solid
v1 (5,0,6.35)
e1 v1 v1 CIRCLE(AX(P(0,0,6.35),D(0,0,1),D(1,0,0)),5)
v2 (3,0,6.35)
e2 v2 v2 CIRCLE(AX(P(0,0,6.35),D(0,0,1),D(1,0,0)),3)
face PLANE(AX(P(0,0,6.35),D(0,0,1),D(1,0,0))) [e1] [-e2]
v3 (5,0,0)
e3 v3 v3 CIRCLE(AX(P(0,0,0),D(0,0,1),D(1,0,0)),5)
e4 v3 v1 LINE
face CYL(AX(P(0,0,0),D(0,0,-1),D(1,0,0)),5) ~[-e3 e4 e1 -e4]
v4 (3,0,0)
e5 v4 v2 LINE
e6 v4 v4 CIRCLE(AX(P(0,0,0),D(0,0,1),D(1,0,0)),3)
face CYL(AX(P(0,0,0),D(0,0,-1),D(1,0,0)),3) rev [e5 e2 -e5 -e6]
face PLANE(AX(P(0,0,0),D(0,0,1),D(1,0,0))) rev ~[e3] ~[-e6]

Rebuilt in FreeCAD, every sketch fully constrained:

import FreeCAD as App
import Part
import Sketcher

V = App.Vector

doc = App.newDocument("Part")
body = doc.addObject("PartDesign::Body", "Body")

# Sketch on XY plane
sketch1 = doc.addObject("Sketcher::SketchObject", "Sketch")
body.addObject(sketch1)
sketch1.AttachmentSupport = (doc.XY_Plane, [""])
sketch1.MapMode = "FlatFace"
sketch1.addGeometry([
    Part.Circle(V(0, 0, 0), V(0, 0, 1), 5),
    Part.Circle(V(0, 0, 0), V(0, 0, 1), 3),
], False)
sketch1.addConstraint([
    Sketcher.Constraint("Coincident", 0, 3, -1, 1),
    Sketcher.Constraint("Coincident", 1, 3, -1, 1),
    Sketcher.Constraint("Diameter", 0, 10.0),
    Sketcher.Constraint("Diameter", 1, 6.0),
])
pad1 = doc.addObject("PartDesign::Pad", "Pad")
body.addObject(pad1)
pad1.Profile = sketch1
pad1.Length = 6.35

doc.recompute()
